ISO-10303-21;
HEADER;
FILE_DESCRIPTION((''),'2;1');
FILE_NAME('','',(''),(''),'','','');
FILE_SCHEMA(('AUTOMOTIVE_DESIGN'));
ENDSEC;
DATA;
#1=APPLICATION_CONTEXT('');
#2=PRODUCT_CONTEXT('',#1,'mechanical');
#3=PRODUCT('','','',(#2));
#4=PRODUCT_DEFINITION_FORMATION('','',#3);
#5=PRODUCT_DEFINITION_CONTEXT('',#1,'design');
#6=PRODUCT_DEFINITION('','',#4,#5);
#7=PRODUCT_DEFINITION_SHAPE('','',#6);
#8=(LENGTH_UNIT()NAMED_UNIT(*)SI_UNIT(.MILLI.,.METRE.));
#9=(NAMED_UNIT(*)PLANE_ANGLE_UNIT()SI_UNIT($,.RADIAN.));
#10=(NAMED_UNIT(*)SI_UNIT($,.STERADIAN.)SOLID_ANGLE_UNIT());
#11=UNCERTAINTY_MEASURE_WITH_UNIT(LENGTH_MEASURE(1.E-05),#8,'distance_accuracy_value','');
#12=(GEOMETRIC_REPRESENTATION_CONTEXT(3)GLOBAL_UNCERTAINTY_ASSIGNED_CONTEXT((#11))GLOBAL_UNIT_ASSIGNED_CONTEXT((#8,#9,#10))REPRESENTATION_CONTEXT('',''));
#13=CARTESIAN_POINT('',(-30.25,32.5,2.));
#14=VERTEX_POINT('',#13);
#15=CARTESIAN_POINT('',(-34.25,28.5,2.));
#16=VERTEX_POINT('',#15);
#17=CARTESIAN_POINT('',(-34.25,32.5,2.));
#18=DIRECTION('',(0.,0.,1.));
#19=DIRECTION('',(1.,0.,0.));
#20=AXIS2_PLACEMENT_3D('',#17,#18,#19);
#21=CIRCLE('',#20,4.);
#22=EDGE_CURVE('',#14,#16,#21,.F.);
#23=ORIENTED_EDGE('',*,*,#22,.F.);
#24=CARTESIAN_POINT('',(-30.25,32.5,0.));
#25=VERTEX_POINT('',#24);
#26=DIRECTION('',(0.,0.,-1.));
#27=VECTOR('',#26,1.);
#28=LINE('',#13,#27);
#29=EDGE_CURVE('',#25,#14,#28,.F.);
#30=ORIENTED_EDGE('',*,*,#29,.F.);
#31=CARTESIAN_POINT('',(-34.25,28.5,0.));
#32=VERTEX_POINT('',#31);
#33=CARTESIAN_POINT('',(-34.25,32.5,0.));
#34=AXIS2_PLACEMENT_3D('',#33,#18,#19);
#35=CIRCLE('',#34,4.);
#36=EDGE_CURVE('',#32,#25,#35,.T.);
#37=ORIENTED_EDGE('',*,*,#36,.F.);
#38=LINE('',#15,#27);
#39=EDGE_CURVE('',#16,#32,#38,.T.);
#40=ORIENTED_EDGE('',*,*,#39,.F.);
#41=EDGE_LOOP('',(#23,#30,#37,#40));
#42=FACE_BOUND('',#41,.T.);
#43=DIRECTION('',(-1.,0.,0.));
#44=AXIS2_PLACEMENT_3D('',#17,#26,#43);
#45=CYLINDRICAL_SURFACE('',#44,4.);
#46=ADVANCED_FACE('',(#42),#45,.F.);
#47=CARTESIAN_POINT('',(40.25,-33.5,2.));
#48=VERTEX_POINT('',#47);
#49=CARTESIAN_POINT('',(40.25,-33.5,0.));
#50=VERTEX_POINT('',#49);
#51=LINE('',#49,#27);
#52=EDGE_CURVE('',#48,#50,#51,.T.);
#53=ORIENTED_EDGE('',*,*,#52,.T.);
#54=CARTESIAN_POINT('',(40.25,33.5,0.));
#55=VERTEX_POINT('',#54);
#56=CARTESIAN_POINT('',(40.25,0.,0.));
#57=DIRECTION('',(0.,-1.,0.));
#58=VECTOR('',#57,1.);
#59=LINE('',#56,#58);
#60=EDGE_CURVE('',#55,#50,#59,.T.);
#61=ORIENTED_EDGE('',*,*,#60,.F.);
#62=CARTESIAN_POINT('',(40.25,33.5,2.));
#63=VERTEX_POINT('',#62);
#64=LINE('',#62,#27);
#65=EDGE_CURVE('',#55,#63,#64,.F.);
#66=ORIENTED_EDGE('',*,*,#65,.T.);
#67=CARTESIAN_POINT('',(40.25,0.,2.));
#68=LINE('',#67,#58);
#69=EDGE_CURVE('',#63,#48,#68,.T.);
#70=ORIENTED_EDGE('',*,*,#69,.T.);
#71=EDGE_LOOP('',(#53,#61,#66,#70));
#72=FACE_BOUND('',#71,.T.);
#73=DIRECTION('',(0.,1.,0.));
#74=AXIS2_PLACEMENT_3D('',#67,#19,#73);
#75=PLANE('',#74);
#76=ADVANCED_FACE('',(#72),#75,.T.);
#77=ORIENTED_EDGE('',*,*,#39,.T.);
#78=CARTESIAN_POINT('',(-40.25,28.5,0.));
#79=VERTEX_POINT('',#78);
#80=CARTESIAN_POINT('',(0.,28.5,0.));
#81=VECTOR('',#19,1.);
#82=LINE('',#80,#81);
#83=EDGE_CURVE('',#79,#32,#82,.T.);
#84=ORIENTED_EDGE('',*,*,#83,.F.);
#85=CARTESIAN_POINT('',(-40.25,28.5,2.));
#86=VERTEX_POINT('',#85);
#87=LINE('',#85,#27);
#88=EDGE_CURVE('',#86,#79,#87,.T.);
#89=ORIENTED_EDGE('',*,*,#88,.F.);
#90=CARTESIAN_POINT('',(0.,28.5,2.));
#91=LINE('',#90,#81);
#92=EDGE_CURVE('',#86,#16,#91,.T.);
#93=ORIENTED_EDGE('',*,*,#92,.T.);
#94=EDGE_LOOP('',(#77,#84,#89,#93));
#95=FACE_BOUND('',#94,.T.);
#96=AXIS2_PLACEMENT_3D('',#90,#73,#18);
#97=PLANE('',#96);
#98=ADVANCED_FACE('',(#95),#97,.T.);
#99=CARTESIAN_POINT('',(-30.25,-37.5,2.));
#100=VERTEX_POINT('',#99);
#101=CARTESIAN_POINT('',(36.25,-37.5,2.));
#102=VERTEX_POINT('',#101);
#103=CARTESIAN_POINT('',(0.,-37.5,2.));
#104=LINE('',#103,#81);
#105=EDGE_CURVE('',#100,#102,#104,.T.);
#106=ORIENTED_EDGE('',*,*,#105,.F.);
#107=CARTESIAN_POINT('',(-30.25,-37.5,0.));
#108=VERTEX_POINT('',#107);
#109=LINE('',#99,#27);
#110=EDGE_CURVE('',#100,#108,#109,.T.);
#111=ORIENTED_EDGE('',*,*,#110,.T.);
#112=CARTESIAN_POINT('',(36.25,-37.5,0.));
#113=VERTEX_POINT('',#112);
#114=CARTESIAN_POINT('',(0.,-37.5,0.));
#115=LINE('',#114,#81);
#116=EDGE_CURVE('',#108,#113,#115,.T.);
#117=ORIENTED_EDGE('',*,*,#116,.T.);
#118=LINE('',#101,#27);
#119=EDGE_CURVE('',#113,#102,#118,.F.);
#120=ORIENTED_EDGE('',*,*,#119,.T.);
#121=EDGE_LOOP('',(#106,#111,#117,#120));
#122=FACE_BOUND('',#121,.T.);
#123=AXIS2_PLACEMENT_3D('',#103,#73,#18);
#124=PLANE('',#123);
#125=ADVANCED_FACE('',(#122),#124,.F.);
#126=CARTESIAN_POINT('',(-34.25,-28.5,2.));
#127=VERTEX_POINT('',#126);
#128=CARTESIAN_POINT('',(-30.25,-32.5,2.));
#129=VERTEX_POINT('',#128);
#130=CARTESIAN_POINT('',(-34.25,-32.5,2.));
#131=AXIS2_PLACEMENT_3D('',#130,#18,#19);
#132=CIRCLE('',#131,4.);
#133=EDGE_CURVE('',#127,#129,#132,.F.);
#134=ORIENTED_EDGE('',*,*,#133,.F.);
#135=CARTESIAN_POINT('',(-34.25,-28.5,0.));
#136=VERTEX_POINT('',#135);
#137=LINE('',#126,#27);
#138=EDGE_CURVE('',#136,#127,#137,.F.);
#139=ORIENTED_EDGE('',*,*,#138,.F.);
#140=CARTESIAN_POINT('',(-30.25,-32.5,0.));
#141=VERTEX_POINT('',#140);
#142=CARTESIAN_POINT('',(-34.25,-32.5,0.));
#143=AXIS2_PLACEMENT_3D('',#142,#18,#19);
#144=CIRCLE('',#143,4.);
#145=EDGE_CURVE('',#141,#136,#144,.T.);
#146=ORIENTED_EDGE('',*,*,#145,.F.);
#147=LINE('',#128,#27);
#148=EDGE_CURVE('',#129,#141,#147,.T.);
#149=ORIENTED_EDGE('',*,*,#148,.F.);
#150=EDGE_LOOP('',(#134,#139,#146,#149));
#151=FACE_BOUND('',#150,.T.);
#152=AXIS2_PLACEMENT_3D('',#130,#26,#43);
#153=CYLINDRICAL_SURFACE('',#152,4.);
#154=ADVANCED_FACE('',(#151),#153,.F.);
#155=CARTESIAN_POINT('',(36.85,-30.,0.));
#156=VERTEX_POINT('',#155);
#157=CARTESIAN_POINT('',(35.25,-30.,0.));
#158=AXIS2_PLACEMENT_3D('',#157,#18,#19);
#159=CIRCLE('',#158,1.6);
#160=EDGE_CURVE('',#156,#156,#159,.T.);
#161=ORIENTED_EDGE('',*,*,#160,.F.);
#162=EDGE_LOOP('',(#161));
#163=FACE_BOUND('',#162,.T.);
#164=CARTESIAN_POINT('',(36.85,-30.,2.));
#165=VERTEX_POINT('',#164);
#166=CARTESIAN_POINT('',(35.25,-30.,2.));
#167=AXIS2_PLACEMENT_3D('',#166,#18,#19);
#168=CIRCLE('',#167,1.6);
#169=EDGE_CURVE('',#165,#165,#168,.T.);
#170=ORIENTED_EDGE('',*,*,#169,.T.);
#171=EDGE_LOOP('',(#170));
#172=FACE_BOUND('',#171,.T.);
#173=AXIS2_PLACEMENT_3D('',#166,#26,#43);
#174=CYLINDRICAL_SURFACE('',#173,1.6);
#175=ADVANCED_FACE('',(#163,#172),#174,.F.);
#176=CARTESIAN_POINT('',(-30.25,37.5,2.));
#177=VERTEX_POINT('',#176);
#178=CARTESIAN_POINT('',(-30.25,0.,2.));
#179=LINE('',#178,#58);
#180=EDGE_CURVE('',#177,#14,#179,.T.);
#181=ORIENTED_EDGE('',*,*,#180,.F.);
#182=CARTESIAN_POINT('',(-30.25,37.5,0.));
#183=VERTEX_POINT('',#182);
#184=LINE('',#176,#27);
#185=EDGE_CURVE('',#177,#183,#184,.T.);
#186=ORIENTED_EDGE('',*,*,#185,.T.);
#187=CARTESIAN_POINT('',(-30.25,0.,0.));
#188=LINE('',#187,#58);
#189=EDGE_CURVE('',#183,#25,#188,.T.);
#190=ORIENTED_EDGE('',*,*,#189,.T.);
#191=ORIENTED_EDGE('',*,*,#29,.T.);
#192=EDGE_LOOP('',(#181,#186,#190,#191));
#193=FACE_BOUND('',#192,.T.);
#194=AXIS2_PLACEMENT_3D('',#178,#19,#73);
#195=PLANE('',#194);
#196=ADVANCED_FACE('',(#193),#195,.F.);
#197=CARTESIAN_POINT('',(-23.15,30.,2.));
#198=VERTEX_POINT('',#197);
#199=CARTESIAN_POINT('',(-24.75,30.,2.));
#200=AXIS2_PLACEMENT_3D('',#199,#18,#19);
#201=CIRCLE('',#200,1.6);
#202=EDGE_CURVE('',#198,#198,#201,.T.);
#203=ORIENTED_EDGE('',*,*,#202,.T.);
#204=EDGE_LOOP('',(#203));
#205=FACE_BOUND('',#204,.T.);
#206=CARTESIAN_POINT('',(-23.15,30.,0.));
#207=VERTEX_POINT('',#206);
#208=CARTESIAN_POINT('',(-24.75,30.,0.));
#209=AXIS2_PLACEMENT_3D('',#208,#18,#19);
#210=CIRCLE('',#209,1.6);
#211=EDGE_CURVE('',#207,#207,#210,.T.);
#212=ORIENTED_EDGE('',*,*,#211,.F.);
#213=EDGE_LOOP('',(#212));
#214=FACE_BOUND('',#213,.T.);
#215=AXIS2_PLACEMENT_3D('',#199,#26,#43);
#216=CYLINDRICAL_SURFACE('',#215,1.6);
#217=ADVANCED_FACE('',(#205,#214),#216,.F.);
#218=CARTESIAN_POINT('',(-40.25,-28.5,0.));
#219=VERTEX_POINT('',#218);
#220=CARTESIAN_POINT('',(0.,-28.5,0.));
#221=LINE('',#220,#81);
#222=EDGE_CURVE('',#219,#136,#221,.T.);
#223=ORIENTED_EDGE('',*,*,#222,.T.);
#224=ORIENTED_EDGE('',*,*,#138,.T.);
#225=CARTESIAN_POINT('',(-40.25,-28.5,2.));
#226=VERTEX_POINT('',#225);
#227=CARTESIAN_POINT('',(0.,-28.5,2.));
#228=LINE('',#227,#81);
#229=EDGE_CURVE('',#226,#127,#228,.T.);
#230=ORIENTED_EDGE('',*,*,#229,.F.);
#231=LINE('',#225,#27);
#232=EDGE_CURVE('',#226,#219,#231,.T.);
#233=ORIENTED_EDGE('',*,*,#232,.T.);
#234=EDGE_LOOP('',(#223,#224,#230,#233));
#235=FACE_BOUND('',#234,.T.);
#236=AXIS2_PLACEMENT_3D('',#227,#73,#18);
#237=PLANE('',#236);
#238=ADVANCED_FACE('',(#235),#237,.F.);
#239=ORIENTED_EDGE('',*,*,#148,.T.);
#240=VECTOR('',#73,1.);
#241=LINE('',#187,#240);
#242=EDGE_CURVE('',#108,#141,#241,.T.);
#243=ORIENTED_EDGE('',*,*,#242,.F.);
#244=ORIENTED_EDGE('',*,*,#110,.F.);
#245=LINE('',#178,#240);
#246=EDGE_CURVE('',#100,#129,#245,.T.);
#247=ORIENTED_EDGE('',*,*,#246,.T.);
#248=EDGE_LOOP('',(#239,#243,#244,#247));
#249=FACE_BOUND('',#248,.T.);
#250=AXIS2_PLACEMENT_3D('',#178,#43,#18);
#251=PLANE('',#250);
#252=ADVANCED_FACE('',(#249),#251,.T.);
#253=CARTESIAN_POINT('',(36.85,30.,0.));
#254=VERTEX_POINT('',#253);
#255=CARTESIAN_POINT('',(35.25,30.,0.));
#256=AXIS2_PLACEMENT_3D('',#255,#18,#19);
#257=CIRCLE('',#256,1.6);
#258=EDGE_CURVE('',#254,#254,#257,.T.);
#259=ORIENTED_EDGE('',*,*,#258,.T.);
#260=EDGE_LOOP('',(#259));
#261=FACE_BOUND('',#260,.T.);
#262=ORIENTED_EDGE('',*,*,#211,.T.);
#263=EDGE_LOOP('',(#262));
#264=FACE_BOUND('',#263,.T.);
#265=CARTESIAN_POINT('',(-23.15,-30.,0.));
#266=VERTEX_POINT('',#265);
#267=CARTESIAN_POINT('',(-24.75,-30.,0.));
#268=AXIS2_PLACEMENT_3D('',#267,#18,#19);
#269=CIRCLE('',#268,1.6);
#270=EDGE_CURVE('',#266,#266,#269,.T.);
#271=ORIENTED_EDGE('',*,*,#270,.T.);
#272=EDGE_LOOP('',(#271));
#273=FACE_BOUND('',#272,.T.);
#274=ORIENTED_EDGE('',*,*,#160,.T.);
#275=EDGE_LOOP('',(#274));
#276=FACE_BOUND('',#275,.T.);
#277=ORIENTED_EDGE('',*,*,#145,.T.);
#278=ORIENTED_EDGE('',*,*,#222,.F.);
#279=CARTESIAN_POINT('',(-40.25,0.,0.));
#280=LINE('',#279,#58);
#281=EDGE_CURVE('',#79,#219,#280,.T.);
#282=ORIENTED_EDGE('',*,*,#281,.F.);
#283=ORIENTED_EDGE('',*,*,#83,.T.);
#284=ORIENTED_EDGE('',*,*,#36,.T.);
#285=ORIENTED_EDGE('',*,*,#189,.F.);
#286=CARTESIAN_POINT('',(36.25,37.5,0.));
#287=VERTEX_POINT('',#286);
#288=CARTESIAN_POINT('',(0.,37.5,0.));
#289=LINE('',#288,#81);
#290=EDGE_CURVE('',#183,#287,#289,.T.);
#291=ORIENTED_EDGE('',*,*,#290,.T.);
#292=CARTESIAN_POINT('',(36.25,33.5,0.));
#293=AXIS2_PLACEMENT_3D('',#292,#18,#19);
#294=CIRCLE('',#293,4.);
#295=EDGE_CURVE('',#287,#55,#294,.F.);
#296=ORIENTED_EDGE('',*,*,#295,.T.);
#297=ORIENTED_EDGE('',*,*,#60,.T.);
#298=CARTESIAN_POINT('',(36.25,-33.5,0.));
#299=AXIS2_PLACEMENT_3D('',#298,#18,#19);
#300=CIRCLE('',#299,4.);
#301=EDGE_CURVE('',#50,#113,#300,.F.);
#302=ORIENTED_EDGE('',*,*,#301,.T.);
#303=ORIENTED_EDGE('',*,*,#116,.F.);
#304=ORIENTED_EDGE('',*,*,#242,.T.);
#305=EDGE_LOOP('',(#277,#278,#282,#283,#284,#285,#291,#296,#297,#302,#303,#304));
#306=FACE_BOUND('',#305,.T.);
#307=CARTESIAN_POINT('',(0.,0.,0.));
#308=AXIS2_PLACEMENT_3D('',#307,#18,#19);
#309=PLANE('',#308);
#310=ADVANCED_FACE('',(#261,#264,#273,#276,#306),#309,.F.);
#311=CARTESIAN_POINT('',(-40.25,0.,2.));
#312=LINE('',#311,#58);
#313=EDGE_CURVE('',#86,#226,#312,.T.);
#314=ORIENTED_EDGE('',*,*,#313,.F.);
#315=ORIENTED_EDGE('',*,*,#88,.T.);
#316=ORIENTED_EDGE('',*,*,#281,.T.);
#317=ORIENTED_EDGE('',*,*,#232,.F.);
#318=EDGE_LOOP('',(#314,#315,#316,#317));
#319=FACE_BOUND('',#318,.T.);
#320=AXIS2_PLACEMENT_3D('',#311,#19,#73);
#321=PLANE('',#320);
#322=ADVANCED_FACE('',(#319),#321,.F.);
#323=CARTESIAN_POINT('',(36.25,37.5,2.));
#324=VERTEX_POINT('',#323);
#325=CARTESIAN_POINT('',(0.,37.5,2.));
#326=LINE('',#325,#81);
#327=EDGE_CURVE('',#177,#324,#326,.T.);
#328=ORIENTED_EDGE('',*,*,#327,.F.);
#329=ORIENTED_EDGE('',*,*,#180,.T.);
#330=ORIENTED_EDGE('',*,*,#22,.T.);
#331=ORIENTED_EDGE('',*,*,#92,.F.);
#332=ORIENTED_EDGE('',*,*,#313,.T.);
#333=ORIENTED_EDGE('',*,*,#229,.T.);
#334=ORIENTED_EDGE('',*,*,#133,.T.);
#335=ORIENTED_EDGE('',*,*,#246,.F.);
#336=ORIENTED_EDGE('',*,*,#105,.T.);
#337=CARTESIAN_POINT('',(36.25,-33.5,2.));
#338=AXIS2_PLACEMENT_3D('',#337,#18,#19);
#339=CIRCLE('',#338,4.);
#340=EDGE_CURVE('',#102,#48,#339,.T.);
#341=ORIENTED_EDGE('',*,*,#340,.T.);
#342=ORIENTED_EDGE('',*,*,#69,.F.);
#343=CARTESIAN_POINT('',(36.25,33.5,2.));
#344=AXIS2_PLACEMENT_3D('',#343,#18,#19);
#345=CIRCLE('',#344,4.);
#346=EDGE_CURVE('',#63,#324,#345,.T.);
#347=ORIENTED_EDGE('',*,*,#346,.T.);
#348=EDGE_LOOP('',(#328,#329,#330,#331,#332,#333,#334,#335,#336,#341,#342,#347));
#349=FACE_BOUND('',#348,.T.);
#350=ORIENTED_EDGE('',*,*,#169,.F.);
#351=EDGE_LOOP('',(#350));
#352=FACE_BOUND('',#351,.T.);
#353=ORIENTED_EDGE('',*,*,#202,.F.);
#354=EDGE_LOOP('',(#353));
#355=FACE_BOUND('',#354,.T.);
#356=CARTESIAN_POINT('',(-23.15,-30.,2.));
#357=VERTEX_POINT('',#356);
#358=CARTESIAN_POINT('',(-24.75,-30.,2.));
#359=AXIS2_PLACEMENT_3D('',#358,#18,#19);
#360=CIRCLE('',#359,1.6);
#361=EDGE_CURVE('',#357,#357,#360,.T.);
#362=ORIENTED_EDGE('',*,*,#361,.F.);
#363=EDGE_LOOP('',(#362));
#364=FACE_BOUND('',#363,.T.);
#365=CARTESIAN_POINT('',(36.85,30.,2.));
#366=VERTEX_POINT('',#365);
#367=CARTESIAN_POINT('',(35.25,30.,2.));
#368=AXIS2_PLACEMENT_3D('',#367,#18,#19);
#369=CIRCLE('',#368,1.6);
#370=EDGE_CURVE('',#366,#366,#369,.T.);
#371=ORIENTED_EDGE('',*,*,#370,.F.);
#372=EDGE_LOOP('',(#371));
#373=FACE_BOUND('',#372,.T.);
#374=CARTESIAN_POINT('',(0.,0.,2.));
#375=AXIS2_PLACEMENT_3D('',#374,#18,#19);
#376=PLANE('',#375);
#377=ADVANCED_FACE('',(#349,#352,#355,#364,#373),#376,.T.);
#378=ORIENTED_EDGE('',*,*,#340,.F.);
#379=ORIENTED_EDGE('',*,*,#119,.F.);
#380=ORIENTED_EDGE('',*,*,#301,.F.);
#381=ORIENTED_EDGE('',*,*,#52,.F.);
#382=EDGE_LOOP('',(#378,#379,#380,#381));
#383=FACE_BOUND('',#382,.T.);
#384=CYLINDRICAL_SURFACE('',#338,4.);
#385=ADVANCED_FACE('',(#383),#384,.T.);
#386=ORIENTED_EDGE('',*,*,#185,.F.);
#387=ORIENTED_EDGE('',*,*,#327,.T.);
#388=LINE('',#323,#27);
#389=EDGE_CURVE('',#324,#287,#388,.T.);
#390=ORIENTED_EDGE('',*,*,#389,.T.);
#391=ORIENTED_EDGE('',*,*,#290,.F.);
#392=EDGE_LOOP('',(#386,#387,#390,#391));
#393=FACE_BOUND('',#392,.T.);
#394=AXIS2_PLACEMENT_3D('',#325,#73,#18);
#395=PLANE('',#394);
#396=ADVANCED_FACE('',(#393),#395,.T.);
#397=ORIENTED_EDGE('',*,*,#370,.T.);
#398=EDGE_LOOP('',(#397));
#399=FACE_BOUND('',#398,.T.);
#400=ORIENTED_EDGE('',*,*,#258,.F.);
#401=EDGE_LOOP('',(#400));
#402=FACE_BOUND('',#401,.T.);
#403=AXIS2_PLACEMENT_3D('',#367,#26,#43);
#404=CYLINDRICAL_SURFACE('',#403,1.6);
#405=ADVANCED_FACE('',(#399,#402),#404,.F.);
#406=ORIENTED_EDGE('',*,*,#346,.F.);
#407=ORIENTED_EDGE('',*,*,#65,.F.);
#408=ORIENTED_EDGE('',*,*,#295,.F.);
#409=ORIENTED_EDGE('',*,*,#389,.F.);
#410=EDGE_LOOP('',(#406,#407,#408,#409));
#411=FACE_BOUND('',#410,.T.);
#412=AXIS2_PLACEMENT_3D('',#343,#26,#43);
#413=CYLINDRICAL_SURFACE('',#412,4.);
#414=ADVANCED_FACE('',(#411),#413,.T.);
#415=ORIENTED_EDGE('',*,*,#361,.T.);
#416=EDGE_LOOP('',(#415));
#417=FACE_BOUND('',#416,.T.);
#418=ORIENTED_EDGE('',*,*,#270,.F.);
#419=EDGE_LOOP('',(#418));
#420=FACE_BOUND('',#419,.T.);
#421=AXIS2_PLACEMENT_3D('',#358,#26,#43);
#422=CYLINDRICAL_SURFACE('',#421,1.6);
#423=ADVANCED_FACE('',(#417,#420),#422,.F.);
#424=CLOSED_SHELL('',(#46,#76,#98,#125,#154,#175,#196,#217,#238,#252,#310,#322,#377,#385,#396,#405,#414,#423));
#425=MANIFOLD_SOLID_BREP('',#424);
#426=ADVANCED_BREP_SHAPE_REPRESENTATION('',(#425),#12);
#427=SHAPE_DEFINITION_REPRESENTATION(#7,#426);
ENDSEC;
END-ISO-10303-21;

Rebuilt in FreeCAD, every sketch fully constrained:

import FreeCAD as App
import Part
import Sketcher
from FreeCAD import Vector
Q = App.Units.Quantity


def edges_at(feature, points):
    """Names of the edges that pass closest to the given points."""
    edges = feature.Shape.Edges
    near = lambda p: min(range(len(edges)), key=lambda i: edges[i].distToShape(Part.Vertex(*p))[0])
    return sorted({f"Edge{near(p) + 1}" for p in points})


def add_polygon(sketch, points):
    """Adds a closed chain of lines whose ends are joined by coincident constraints."""
    first, n = sketch.GeometryCount, len(points)
    for a, b in zip(points, points[1:] + points[:1]):
        sketch.addGeometry(Part.LineSegment(App.Vector(*a, 0), App.Vector(*b, 0)), False)
    for i in range(n):
        sketch.addConstraint(Sketcher.Constraint("Coincident", first + i, 2, first + (i + 1) % n, 1))

doc = App.newDocument("Part")
body = doc.addObject("PartDesign::Body", "Body")

# Sketch on XY plane
sketch1 = body.newObject("Sketcher::SketchObject", "Sketch")
sketch1.AttachmentSupport = (doc.getObject("XY_Plane"), [""])
sketch1.MapMode = "FlatFace"
add_polygon(sketch1, [(40.2, 37.5), (-30.2, 37.5), (-30.2, 28.5), (-40.2, 28.5), (-40.2, -28.5), (-30.2, -28.5), (-30.2, -37.5), (40.2, -37.5)])  # lines 0-7
sketch1.addGeometry(Part.Circle(Vector(-24.8, -30, 0), Vector(0, 0, 1), 1.6), False)  # 8
sketch1.addGeometry(Part.Circle(Vector(35.2, -30, 0), Vector(0, 0, 1), 1.6), False)  # 9
sketch1.addGeometry(Part.Circle(Vector(-24.8, 30, 0), Vector(0, 0, 1), 1.6), False)  # 10
sketch1.addGeometry(Part.Circle(Vector(35.2, 30, 0), Vector(0, 0, 1), 1.6), False)  # 11
sketch1.addConstraint(Sketcher.Constraint("Horizontal", 0))
sketch1.addConstraint(Sketcher.Constraint("Vertical", 1))
sketch1.addConstraint(Sketcher.Constraint("Horizontal", 2))
sketch1.addConstraint(Sketcher.Constraint("Vertical", 3))
sketch1.addConstraint(Sketcher.Constraint("Horizontal", 4))
sketch1.addConstraint(Sketcher.Constraint("Vertical", 5))
sketch1.addConstraint(Sketcher.Constraint("Horizontal", 6))
sketch1.addConstraint(Sketcher.Constraint("Vertical", 7))
sketch1.addConstraint(Sketcher.Constraint("Equal", 8, 9))
sketch1.addConstraint(Sketcher.Constraint("Equal", 9, 10))
sketch1.addConstraint(Sketcher.Constraint("Equal", 10, 11))
sketch1.addConstraint(Sketcher.Constraint("Symmetric", 8, 3, 10, 3, -1))
sketch1.addConstraint(Sketcher.Constraint("Symmetric", 9, 3, 11, 3, -1))
sketch1.addConstraint(Sketcher.Constraint("Symmetric", 1, 2, 4, 2, -1))
sketch1.addConstraint(Sketcher.Constraint("Horizontal", 8, 3, 9, 3))
sketch1.addConstraint(Sketcher.Constraint("Equal", 1, 5))
sketch1.addConstraint(Sketcher.Constraint("Diameter", 8, Q("3.2 mm")))
sketch1.addConstraint(Sketcher.Constraint("DistanceX", 2, 2, 2, 1, Q("10 mm")))
sketch1.addConstraint(Sketcher.Constraint("DistanceY", 1, 2, 1, 1, Q("9 mm")))
sketch1.addConstraint(Sketcher.Constraint("DistanceY", 3, 2, 3, 1, Q("57 mm")))
sketch1.addConstraint(Sketcher.Constraint("DistanceX", 0, 2, 0, 1, Q("70.5 mm")))
sketch1.addConstraint(Sketcher.Constraint("DistanceY", 8, 3, -1, 1, Q("30 mm")))
sketch1.addConstraint(Sketcher.Constraint("DistanceX", 8, 3, 9, 3, Q("60 mm")))
sketch1.addConstraint(Sketcher.Constraint("DistanceX", 9, 3, 6, 2, Q("5 mm")))
sketch1.addConstraint(Sketcher.Constraint("DistanceX", 8, 3, -1, 1, Q("24.75 mm")))
pad1 = body.newObject("PartDesign::Pad", "Pad")
pad1.Profile = sketch1
pad1.Length = 2
doc.recompute()

fillet = body.newObject("PartDesign::Fillet", "Fillet")
fillet.Base = (pad1, edges_at(pad1, [
    (-30.25, -28.5, 1),
    (-30.25, 28.5, 1),
    (40.25, 37.5, 1),
    (40.25, -37.5, 1),
]))
fillet.Radius = 4

doc.recompute()
